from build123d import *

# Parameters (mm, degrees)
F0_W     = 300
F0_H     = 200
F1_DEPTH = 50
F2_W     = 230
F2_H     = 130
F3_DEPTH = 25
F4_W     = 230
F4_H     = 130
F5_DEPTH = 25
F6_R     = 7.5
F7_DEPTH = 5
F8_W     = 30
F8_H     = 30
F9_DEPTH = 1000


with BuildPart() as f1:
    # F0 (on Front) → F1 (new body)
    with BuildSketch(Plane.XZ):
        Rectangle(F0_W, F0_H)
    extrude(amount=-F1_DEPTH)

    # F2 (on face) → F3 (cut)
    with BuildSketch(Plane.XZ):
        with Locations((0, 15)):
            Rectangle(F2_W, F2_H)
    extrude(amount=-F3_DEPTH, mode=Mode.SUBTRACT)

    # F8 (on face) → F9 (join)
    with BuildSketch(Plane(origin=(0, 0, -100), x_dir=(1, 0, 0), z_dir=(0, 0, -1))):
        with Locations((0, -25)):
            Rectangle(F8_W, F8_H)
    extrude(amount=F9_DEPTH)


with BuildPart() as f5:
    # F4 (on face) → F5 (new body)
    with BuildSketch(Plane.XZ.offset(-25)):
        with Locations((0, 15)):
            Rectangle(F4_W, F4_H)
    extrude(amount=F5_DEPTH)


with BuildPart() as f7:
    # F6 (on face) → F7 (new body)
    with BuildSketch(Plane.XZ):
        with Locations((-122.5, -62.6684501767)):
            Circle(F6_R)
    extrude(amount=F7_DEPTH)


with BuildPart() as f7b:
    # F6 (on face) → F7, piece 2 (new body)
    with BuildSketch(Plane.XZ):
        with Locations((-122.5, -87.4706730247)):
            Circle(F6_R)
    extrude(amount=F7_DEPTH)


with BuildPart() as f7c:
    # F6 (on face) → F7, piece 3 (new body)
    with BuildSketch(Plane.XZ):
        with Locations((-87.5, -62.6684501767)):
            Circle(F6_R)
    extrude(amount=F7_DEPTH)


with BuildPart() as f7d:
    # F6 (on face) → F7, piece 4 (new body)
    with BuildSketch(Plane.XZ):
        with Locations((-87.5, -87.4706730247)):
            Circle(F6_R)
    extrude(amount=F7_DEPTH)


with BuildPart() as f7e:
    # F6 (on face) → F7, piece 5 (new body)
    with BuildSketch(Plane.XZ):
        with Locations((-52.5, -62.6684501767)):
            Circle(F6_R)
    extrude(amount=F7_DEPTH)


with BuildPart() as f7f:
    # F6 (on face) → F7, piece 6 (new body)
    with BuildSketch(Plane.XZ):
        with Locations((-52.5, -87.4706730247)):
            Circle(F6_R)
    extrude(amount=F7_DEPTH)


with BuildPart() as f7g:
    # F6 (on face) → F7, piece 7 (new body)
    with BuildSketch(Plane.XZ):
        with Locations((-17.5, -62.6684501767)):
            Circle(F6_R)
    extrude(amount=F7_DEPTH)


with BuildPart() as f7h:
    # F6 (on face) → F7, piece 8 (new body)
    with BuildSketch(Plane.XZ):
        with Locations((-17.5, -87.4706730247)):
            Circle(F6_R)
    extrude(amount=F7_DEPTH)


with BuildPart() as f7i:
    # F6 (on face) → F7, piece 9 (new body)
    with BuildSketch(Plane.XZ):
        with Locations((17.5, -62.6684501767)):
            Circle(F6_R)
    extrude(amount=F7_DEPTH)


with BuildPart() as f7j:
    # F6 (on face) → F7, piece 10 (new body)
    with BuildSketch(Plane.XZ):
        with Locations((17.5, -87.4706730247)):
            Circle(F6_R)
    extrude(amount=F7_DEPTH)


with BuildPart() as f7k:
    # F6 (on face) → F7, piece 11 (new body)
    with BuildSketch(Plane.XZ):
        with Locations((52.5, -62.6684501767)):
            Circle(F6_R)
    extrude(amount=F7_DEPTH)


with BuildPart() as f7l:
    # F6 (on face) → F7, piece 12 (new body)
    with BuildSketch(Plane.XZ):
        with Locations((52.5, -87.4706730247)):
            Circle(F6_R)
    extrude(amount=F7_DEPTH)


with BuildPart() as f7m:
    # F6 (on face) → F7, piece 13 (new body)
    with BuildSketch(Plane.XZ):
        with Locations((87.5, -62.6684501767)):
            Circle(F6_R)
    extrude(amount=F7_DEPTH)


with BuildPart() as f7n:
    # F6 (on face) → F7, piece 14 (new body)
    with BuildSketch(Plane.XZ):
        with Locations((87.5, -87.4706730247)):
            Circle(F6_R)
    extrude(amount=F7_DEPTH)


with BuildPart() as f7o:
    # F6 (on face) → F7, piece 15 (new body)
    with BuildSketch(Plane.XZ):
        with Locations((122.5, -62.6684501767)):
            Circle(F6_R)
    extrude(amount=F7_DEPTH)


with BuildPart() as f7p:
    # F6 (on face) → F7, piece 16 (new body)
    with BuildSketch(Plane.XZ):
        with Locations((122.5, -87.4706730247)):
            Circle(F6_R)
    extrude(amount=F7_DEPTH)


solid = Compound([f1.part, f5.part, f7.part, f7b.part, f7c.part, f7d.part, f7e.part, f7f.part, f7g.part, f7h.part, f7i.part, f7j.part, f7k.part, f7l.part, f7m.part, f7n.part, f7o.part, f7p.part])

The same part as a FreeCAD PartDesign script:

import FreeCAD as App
import Part
import Sketcher


def add_polygon(sketch, points):
    """Adds a closed chain of lines whose ends are joined by coincident constraints."""
    first, n = sketch.GeometryCount, len(points)
    for a, b in zip(points, points[1:] + points[:1]):
        sketch.addGeometry(Part.LineSegment(App.Vector(*a, 0), App.Vector(*b, 0)), False)
    for i in range(n):
        sketch.addConstraint(Sketcher.Constraint("Coincident", first + i, 2, first + (i + 1) % n, 1))

doc = App.newDocument("Part")
body = doc.addObject("PartDesign::Body", "Body")

# Sketch on XZ plane
sketch1 = doc.addObject("Sketcher::SketchObject", "Sketch")
body.addObject(sketch1)
sketch1.AttachmentSupport = (doc.XZ_Plane, [""])
sketch1.MapMode = "FlatFace"
add_polygon(sketch1, [(-150, 100), (-150, -100), (150, -100), (150, 100)])  # lines 0-3
sketch1.addConstraint(Sketcher.Constraint("Vertical", 0))
sketch1.addConstraint(Sketcher.Constraint("Horizontal", 1))
sketch1.addConstraint(Sketcher.Constraint("Vertical", 2))
sketch1.addConstraint(Sketcher.Constraint("Horizontal", 3))
sketch1.addConstraint(Sketcher.Constraint("Symmetric", 0, 2, 2, 2, -1, 1))
sketch1.addConstraint(Sketcher.Constraint("DistanceX", 1, 1, 1, 2, 300.0))
sketch1.addConstraint(Sketcher.Constraint("DistanceY", 0, 2, 0, 1, 200.0))
pad1 = doc.addObject("PartDesign::Pad", "Pad")
body.addObject(pad1)
pad1.Profile = sketch1
pad1.Length = 50
pad1.Reversed = True

# Sketch on XZ plane
sketch2 = doc.addObject("Sketcher::SketchObject", "Sketch001")
body.addObject(sketch2)
sketch2.AttachmentSupport = (doc.XZ_Plane, [""])
sketch2.MapMode = "FlatFace"
add_polygon(sketch2, [(-115, 80), (-115, -50), (115, -50), (115, 80)])  # lines 0-3
sketch2.addConstraint(Sketcher.Constraint("Vertical", 0))
sketch2.addConstraint(Sketcher.Constraint("Horizontal", 1))
sketch2.addConstraint(Sketcher.Constraint("Vertical", 2))
sketch2.addConstraint(Sketcher.Constraint("Horizontal", 3))
sketch2.addConstraint(Sketcher.Constraint("DistanceX", 1, 1, 1, 2, 230.0))
sketch2.addConstraint(Sketcher.Constraint("DistanceY", 0, 2, 0, 1, 130.0))
sketch2.addConstraint(Sketcher.Constraint("DistanceX", 0, 2, -1, 1, 115.0))
sketch2.addConstraint(Sketcher.Constraint("DistanceY", 0, 2, -1, 1, 50.0))
pocket1 = doc.addObject("PartDesign::Pocket", "Pocket")
body.addObject(pocket1)
pocket1.Profile = sketch2
pocket1.Length = 25

# Sketch on XY plane
sketch3 = doc.addObject("Sketcher::SketchObject", "Sketch002")
body.addObject(sketch3)
sketch3.AttachmentSupport = (doc.XY_Plane, [""])
sketch3.MapMode = "FlatFace"
sketch3.AttachmentOffset = App.Placement(App.Vector(0, 0, -100), App.Rotation())
add_polygon(sketch3, [(-15, 10), (-15, 40), (15, 40), (15, 10)])  # lines 0-3
sketch3.addConstraint(Sketcher.Constraint("Vertical", 0))
sketch3.addConstraint(Sketcher.Constraint("Horizontal", 1))
sketch3.addConstraint(Sketcher.Constraint("Vertical", 2))
sketch3.addConstraint(Sketcher.Constraint("Horizontal", 3))
sketch3.addConstraint(Sketcher.Constraint("Equal", 3, 0))
sketch3.addConstraint(Sketcher.Constraint("DistanceX", 1, 1, 1, 2, 30.0))
sketch3.addConstraint(Sketcher.Constraint("DistanceX", 0, 2, -1, 1, 15.0))
sketch3.addConstraint(Sketcher.Constraint("DistanceY", -1, 1, 0, 2, 40.0))
pad2 = doc.addObject("PartDesign::Pad", "Pad001")
body.addObject(pad2)
pad2.Profile = sketch3
pad2.Length = 1000
pad2.Reversed = True
body2 = doc.addObject("PartDesign::Body", "Body001")

# Sketch on XZ plane
sketch4 = doc.addObject("Sketcher::SketchObject", "Sketch003")
body2.addObject(sketch4)
sketch4.AttachmentSupport = (doc.getObject("XZ_Plane001"), [""])
sketch4.MapMode = "FlatFace"
sketch4.AttachmentOffset = App.Placement(App.Vector(0, 0, -25), App.Rotation())
add_polygon(sketch4, [(-115, 80), (-115, -50), (115, -50), (115, 80)])  # lines 0-3
sketch4.addConstraint(Sketcher.Constraint("Vertical", 0))
sketch4.addConstraint(Sketcher.Constraint("Horizontal", 1))
sketch4.addConstraint(Sketcher.Constraint("Vertical", 2))
sketch4.addConstraint(Sketcher.Constraint("Horizontal", 3))
sketch4.addConstraint(Sketcher.Constraint("DistanceX", 1, 1, 1, 2, 230.0))
sketch4.addConstraint(Sketcher.Constraint("DistanceY", 0, 2, 0, 1, 130.0))
sketch4.addConstraint(Sketcher.Constraint("DistanceX", 0, 2, -1, 1, 115.0))
sketch4.addConstraint(Sketcher.Constraint("DistanceY", 0, 2, -1, 1, 50.0))
pad3 = doc.addObject("PartDesign::Pad", "Pad002")
body2.addObject(pad3)
pad3.Profile = sketch4
pad3.Length = 25
body3 = doc.addObject("PartDesign::Body", "Body002")

# Sketch on XZ plane
sketch5 = doc.addObject("Sketcher::SketchObject", "Sketch004")
body3.addObject(sketch5)
sketch5.AttachmentSupport = (doc.getObject("XZ_Plane002"), [""])
sketch5.MapMode = "FlatFace"
sketch5.addGeometry(Part.Circle(App.Vector(-122, -63, 0), App.Vector(0, 0, 1), 8), False)
sketch5.addConstraint(Sketcher.Constraint("Diameter", 0, 15.0))
sketch5.addConstraint(Sketcher.Constraint("DistanceX", 0, 3, -1, 1, 122.5))
sketch5.addConstraint(Sketcher.Constraint("DistanceY", 0, 3, -1, 1, 62.66845))
pad4 = doc.addObject("PartDesign::Pad", "Pad003")
body3.addObject(pad4)
pad4.Profile = sketch5
pad4.Length = 5
body4 = doc.addObject("PartDesign::Body", "Body003")

# Sketch on XZ plane
sketch6 = doc.addObject("Sketcher::SketchObject", "Sketch005")
body4.addObject(sketch6)
sketch6.AttachmentSupport = (doc.getObject("XZ_Plane003"), [""])
sketch6.MapMode = "FlatFace"
sketch6.addGeometry(Part.Circle(App.Vector(-122, -87, 0), App.Vector(0, 0, 1), 8), False)
sketch6.addConstraint(Sketcher.Constraint("Diameter", 0, 15.0))
sketch6.addConstraint(Sketcher.Constraint("DistanceX", 0, 3, -1, 1, 122.5))
sketch6.addConstraint(Sketcher.Constraint("DistanceY", 0, 3, -1, 1, 87.470673))
pad5 = doc.addObject("PartDesign::Pad", "Pad004")
body4.addObject(pad5)
pad5.Profile = sketch6
pad5.Length = 5
body5 = doc.addObject("PartDesign::Body", "Body004")

# Sketch on XZ plane
sketch7 = doc.addObject("Sketcher::SketchObject", "Sketch006")
body5.addObject(sketch7)
sketch7.AttachmentSupport = (doc.getObject("XZ_Plane004"), [""])
sketch7.MapMode = "FlatFace"
sketch7.addGeometry(Part.Circle(App.Vector(-88, -63, 0), App.Vector(0, 0, 1), 8), False)
sketch7.addConstraint(Sketcher.Constraint("Diameter", 0, 15.0))
sketch7.addConstraint(Sketcher.Constraint("DistanceX", 0, 3, -1, 1, 87.5))
sketch7.addConstraint(Sketcher.Constraint("DistanceY", 0, 3, -1, 1, 62.66845))
pad6 = doc.addObject("PartDesign::Pad", "Pad005")
body5.addObject(pad6)
pad6.Profile = sketch7
pad6.Length = 5
body6 = doc.addObject("PartDesign::Body", "Body005")

# Sketch on XZ plane
sketch8 = doc.addObject("Sketcher::SketchObject", "Sketch007")
body6.addObject(sketch8)
sketch8.AttachmentSupport = (doc.getObject("XZ_Plane005"), [""])
sketch8.MapMode = "FlatFace"
sketch8.addGeometry(Part.Circle(App.Vector(-88, -87, 0), App.Vector(0, 0, 1), 8), False)
sketch8.addConstraint(Sketcher.Constraint("Diameter", 0, 15.0))
sketch8.addConstraint(Sketcher.Constraint("DistanceX", 0, 3, -1, 1, 87.5))
sketch8.addConstraint(Sketcher.Constraint("DistanceY", 0, 3, -1, 1, 87.470673))
pad7 = doc.addObject("PartDesign::Pad", "Pad006")
body6.addObject(pad7)
pad7.Profile = sketch8
pad7.Length = 5
body7 = doc.addObject("PartDesign::Body", "Body006")

# Sketch on XZ plane
sketch9 = doc.addObject("Sketcher::SketchObject", "Sketch008")
body7.addObject(sketch9)
sketch9.AttachmentSupport = (doc.getObject("XZ_Plane006"), [""])
sketch9.MapMode = "FlatFace"
sketch9.addGeometry(Part.Circle(App.Vector(-52, -63, 0), App.Vector(0, 0, 1), 8), False)
sketch9.addConstraint(Sketcher.Constraint("Diameter", 0, 15.0))
sketch9.addConstraint(Sketcher.Constraint("DistanceX", 0, 3, -1, 1, 52.5))
sketch9.addConstraint(Sketcher.Constraint("DistanceY", 0, 3, -1, 1, 62.66845))
pad8 = doc.addObject("PartDesign::Pad", "Pad007")
body7.addObject(pad8)
pad8.Profile = sketch9
pad8.Length = 5
body8 = doc.addObject("PartDesign::Body", "Body007")

# Sketch on XZ plane
sketch10 = doc.addObject("Sketcher::SketchObject", "Sketch009")
body8.addObject(sketch10)
sketch10.AttachmentSupport = (doc.getObject("XZ_Plane007"), [""])
sketch10.MapMode = "FlatFace"
sketch10.addGeometry(Part.Circle(App.Vector(-52, -87, 0), App.Vector(0, 0, 1), 8), False)
sketch10.addConstraint(Sketcher.Constraint("Diameter", 0, 15.0))
sketch10.addConstraint(Sketcher.Constraint("DistanceX", 0, 3, -1, 1, 52.5))
sketch10.addConstraint(Sketcher.Constraint("DistanceY", 0, 3, -1, 1, 87.470673))
pad9 = doc.addObject("PartDesign::Pad", "Pad008")
body8.addObject(pad9)
pad9.Profile = sketch10
pad9.Length = 5
body9 = doc.addObject("PartDesign::Body", "Body008")

# Sketch on XZ plane
sketch11 = doc.addObject("Sketcher::SketchObject", "Sketch010")
body9.addObject(sketch11)
sketch11.AttachmentSupport = (doc.getObject("XZ_Plane008"), [""])
sketch11.MapMode = "FlatFace"
sketch11.addGeometry(Part.Circle(App.Vector(-18, -63, 0), App.Vector(0, 0, 1), 8), False)
sketch11.addConstraint(Sketcher.Constraint("Diameter", 0, 15.0))
sketch11.addConstraint(Sketcher.Constraint("DistanceX", 0, 3, -1, 1, 17.5))
sketch11.addConstraint(Sketcher.Constraint("DistanceY", 0, 3, -1, 1, 62.66845))
pad10 = doc.addObject("PartDesign::Pad", "Pad009")
body9.addObject(pad10)
pad10.Profile = sketch11
pad10.Length = 5
body10 = doc.addObject("PartDesign::Body", "Body009")

# Sketch on XZ plane
sketch12 = doc.addObject("Sketcher::SketchObject", "Sketch011")
body10.addObject(sketch12)
sketch12.AttachmentSupport = (doc.getObject("XZ_Plane009"), [""])
sketch12.MapMode = "FlatFace"
sketch12.addGeometry(Part.Circle(App.Vector(-18, -87, 0), App.Vector(0, 0, 1), 8), False)
sketch12.addConstraint(Sketcher.Constraint("Diameter", 0, 15.0))
sketch12.addConstraint(Sketcher.Constraint("DistanceX", 0, 3, -1, 1, 17.5))
sketch12.addConstraint(Sketcher.Constraint("DistanceY", 0, 3, -1, 1, 87.470673))
pad11 = doc.addObject("PartDesign::Pad", "Pad010")
body10.addObject(pad11)
pad11.Profile = sketch12
pad11.Length = 5
body11 = doc.addObject("PartDesign::Body", "Body010")

# Sketch on XZ plane
sketch13 = doc.addObject("Sketcher::SketchObject", "Sketch012")
body11.addObject(sketch13)
sketch13.AttachmentSupport = (doc.getObject("XZ_Plane010"), [""])
sketch13.MapMode = "FlatFace"
sketch13.addGeometry(Part.Circle(App.Vector(18, -63, 0), App.Vector(0, 0, 1), 8), False)
sketch13.addConstraint(Sketcher.Constraint("Diameter", 0, 15.0))
sketch13.addConstraint(Sketcher.Constraint("DistanceX", -1, 1, 0, 3, 17.5))
sketch13.addConstraint(Sketcher.Constraint("DistanceY", 0, 3, -1, 1, 62.66845))
pad12 = doc.addObject("PartDesign::Pad", "Pad011")
body11.addObject(pad12)
pad12.Profile = sketch13
pad12.Length = 5
body12 = doc.addObject("PartDesign::Body", "Body011")

# Sketch on XZ plane
sketch14 = doc.addObject("Sketcher::SketchObject", "Sketch013")
body12.addObject(sketch14)
sketch14.AttachmentSupport = (doc.getObject("XZ_Plane011"), [""])
sketch14.MapMode = "FlatFace"
sketch14.addGeometry(Part.Circle(App.Vector(18, -87, 0), App.Vector(0, 0, 1), 8), False)
sketch14.addConstraint(Sketcher.Constraint("Diameter", 0, 15.0))
sketch14.addConstraint(Sketcher.Constraint("DistanceX", -1, 1, 0, 3, 17.5))
sketch14.addConstraint(Sketcher.Constraint("DistanceY", 0, 3, -1, 1, 87.470673))
pad13 = doc.addObject("PartDesign::Pad", "Pad012")
body12.addObject(pad13)
pad13.Profile = sketch14
pad13.Length = 5
body13 = doc.addObject("PartDesign::Body", "Body012")

# Sketch on XZ plane
sketch15 = doc.addObject("Sketcher::SketchObject", "Sketch014")
body13.addObject(sketch15)
sketch15.AttachmentSupport = (doc.getObject("XZ_Plane012"), [""])
sketch15.MapMode = "FlatFace"
sketch15.addGeometry(Part.Circle(App.Vector(52, -63, 0), App.Vector(0, 0, 1), 8), False)
sketch15.addConstraint(Sketcher.Constraint("Diameter", 0, 15.0))
sketch15.addConstraint(Sketcher.Constraint("DistanceX", -1, 1, 0, 3, 52.5))
sketch15.addConstraint(Sketcher.Constraint("DistanceY", 0, 3, -1, 1, 62.66845))
pad14 = doc.addObject("PartDesign::Pad", "Pad013")
body13.addObject(pad14)
pad14.Profile = sketch15
pad14.Length = 5
body14 = doc.addObject("PartDesign::Body", "Body013")

# Sketch on XZ plane
sketch16 = doc.addObject("Sketcher::SketchObject", "Sketch015")
body14.addObject(sketch16)
sketch16.AttachmentSupport = (doc.getObject("XZ_Plane013"), [""])
sketch16.MapMode = "FlatFace"
sketch16.addGeometry(Part.Circle(App.Vector(52, -87, 0), App.Vector(0, 0, 1), 8), False)
sketch16.addConstraint(Sketcher.Constraint("Diameter", 0, 15.0))
sketch16.addConstraint(Sketcher.Constraint("DistanceX", -1, 1, 0, 3, 52.5))
sketch16.addConstraint(Sketcher.Constraint("DistanceY", 0, 3, -1, 1, 87.470673))
pad15 = doc.addObject("PartDesign::Pad", "Pad014")
body14.addObject(pad15)
pad15.Profile = sketch16
pad15.Length = 5
body15 = doc.addObject("PartDesign::Body", "Body014")

# Sketch on XZ plane
sketch17 = doc.addObject("Sketcher::SketchObject", "Sketch016")
body15.addObject(sketch17)
sketch17.AttachmentSupport = (doc.getObject("XZ_Plane014"), [""])
sketch17.MapMode = "FlatFace"
sketch17.addGeometry(Part.Circle(App.Vector(88, -63, 0), App.Vector(0, 0, 1), 8), False)
sketch17.addConstraint(Sketcher.Constraint("Diameter", 0, 15.0))
sketch17.addConstraint(Sketcher.Constraint("DistanceX", -1, 1, 0, 3, 87.5))
sketch17.addConstraint(Sketcher.Constraint("DistanceY", 0, 3, -1, 1, 62.66845))
pad16 = doc.addObject("PartDesign::Pad", "Pad015")
body15.addObject(pad16)
pad16.Profile = sketch17
pad16.Length = 5
body16 = doc.addObject("PartDesign::Body", "Body015")

# Sketch on XZ plane
sketch18 = doc.addObject("Sketcher::SketchObject", "Sketch017")
body16.addObject(sketch18)
sketch18.AttachmentSupport = (doc.getObject("XZ_Plane015"), [""])
sketch18.MapMode = "FlatFace"
sketch18.addGeometry(Part.Circle(App.Vector(88, -87, 0), App.Vector(0, 0, 1), 8), False)
sketch18.addConstraint(Sketcher.Constraint("Diameter", 0, 15.0))
sketch18.addConstraint(Sketcher.Constraint("DistanceX", -1, 1, 0, 3, 87.5))
sketch18.addConstraint(Sketcher.Constraint("DistanceY", 0, 3, -1, 1, 87.470673))
pad17 = doc.addObject("PartDesign::Pad", "Pad016")
body16.addObject(pad17)
pad17.Profile = sketch18
pad17.Length = 5
body17 = doc.addObject("PartDesign::Body", "Body016")

# Sketch on XZ plane
sketch19 = doc.addObject("Sketcher::SketchObject", "Sketch018")
body17.addObject(sketch19)
sketch19.AttachmentSupport = (doc.getObject("XZ_Plane016"), [""])
sketch19.MapMode = "FlatFace"
sketch19.addGeometry(Part.Circle(App.Vector(122, -63, 0), App.Vector(0, 0, 1), 8), False)
sketch19.addConstraint(Sketcher.Constraint("Diameter", 0, 15.0))
sketch19.addConstraint(Sketcher.Constraint("DistanceX", -1, 1, 0, 3, 122.5))
sketch19.addConstraint(Sketcher.Constraint("DistanceY", 0, 3, -1, 1, 62.66845))
pad18 = doc.addObject("PartDesign::Pad", "Pad017")
body17.addObject(pad18)
pad18.Profile = sketch19
pad18.Length = 5
body18 = doc.addObject("PartDesign::Body", "Body017")

# Sketch on XZ plane
sketch20 = doc.addObject("Sketcher::SketchObject", "Sketch019")
body18.addObject(sketch20)
sketch20.AttachmentSupport = (doc.getObject("XZ_Plane017"), [""])
sketch20.MapMode = "FlatFace"
sketch20.addGeometry(Part.Circle(App.Vector(122, -87, 0), App.Vector(0, 0, 1), 8), False)
sketch20.addConstraint(Sketcher.Constraint("Diameter", 0, 15.0))
sketch20.addConstraint(Sketcher.Constraint("DistanceX", -1, 1, 0, 3, 122.5))
sketch20.addConstraint(Sketcher.Constraint("DistanceY", 0, 3, -1, 1, 87.470673))
pad19 = doc.addObject("PartDesign::Pad", "Pad018")
body18.addObject(pad19)
pad19.Profile = sketch20
pad19.Length = 5

doc.recompute()
